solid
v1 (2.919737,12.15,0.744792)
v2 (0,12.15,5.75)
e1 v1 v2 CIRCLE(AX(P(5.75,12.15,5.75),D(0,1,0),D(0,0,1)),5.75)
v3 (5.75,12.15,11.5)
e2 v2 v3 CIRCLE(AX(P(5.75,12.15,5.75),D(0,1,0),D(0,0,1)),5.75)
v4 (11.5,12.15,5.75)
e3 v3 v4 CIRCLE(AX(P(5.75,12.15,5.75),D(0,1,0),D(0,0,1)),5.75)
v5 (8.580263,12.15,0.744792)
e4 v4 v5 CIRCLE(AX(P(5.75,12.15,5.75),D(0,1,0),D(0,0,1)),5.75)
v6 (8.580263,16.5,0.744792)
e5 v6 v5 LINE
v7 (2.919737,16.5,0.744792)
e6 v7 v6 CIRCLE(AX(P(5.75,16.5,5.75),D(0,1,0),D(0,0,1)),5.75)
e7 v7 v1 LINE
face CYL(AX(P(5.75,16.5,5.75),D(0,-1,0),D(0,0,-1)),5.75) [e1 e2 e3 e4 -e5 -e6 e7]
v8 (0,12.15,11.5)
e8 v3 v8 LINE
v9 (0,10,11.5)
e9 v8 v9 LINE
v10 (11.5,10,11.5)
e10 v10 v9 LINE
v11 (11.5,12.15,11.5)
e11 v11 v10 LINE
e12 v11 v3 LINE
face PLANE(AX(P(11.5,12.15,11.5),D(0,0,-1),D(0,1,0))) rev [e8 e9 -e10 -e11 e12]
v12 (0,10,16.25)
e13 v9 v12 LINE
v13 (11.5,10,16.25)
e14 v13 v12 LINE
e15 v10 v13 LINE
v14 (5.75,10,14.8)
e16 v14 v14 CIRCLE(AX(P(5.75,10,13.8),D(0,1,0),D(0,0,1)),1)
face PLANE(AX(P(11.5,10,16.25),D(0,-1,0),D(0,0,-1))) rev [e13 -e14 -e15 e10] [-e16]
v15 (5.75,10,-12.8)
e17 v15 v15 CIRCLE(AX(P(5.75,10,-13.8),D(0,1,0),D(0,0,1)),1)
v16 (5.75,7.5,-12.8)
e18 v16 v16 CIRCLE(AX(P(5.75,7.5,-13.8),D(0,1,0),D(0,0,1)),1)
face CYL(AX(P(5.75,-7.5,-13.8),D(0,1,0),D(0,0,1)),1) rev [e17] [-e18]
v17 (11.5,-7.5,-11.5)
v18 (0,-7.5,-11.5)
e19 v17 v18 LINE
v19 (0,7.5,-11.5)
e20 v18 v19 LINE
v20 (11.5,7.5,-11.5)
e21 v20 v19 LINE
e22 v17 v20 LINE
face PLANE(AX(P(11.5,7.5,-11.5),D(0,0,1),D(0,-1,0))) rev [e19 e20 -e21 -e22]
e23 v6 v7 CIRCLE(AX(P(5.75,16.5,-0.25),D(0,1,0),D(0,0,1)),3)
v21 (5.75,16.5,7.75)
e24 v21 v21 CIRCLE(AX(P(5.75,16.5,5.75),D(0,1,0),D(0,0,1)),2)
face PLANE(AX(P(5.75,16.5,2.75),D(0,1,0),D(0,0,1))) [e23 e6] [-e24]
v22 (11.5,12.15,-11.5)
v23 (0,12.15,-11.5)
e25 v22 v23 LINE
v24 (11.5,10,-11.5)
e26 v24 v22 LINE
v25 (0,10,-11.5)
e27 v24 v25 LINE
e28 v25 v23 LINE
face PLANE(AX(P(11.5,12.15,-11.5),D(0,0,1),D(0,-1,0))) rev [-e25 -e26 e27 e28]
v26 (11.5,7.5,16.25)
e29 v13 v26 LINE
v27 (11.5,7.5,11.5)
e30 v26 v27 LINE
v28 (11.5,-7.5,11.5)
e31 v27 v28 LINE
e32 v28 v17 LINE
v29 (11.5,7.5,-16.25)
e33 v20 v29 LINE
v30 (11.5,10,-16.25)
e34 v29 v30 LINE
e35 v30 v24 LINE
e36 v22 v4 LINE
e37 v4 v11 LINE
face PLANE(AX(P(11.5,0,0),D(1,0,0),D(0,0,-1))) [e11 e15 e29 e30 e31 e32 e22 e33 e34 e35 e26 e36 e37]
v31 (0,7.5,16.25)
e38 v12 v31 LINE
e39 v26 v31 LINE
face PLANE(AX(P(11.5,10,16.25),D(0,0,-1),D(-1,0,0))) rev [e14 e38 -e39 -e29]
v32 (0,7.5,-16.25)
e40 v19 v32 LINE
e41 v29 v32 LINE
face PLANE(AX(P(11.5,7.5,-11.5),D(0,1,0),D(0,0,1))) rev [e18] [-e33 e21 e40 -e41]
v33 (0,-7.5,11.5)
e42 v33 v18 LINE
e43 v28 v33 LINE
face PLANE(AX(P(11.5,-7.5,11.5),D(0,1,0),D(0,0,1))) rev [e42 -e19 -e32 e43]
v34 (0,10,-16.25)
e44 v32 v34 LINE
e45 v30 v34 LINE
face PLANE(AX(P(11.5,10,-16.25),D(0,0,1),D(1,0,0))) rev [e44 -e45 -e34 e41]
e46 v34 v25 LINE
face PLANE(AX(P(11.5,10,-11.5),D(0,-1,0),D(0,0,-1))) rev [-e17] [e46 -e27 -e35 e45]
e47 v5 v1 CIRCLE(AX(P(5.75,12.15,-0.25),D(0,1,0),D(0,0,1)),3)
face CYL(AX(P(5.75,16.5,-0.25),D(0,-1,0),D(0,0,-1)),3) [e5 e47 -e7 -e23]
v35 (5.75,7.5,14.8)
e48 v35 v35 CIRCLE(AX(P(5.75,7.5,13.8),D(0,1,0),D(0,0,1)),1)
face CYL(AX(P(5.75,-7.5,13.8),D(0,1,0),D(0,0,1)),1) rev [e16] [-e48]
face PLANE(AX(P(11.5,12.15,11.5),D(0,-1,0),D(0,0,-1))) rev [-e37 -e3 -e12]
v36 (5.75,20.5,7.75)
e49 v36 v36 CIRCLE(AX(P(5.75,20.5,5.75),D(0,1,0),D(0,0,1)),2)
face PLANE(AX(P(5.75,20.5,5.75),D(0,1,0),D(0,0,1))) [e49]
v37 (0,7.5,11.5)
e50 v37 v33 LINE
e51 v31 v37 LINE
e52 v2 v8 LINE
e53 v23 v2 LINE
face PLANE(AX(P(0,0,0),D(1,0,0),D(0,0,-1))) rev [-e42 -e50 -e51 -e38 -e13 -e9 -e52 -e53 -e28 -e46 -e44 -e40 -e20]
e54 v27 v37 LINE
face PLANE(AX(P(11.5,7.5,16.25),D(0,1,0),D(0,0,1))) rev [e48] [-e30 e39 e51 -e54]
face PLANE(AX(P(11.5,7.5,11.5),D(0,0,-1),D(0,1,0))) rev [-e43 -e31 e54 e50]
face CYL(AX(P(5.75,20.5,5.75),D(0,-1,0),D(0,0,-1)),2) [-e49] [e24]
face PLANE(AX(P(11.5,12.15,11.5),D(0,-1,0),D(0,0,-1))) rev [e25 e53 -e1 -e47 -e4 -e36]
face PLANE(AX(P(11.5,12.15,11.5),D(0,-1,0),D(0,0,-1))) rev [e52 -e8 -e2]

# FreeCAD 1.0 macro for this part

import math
import FreeCAD as App
import Part
import Sketcher

V = App.Vector
Q = App.Units.Quantity

doc = App.newDocument("Part")
body = doc.addObject("PartDesign::Body", "Body")

# Sketch on YZ plane
sketch1 = doc.addObject("Sketcher::SketchObject", "Sketch")
body.addObject(sketch1)
sketch1.AttachmentSupport = (doc.YZ_Plane, [""])
sketch1.MapMode = "FlatFace"
sketch1.addGeometry(Part.LineSegment(V(10, -16.2, 0), V(10, -11.5, 0)), False)
sketch1.addGeometry(Part.LineSegment(V(10, -11.5, 0), V(12.2, -11.5, 0)), False)
sketch1.addGeometry(Part.LineSegment(V(12.2, -11.5, 0), V(12.2, 11.5, 0)), False)
sketch1.addGeometry(Part.LineSegment(V(12.2, 11.5, 0), V(10, 11.5, 0)), False)
sketch1.addGeometry(Part.LineSegment(V(10, 11.5, 0), V(10, 16.2, 0)), False)
sketch1.addGeometry(Part.LineSegment(V(10, 16.2, 0), V(7.5, 16.2, 0)), False)
sketch1.addGeometry(Part.LineSegment(V(7.5, 16.2, 0), V(7.5, 11.5, 0)), False)
sketch1.addGeometry(Part.LineSegment(V(7.5, 11.5, 0), V(-7.5, 11.5, 0)), False)
sketch1.addGeometry(Part.LineSegment(V(-7.5, 11.5, 0), V(-7.5, -11.5, 0)), False)
sketch1.addGeometry(Part.LineSegment(V(-7.5, -11.5, 0), V(7.5, -11.5, 0)), False)
sketch1.addGeometry(Part.LineSegment(V(7.5, -11.5, 0), V(7.5, -16.2, 0)), False)
sketch1.addGeometry(Part.LineSegment(V(7.5, -16.2, 0), V(10, -16.2, 0)), False)
sketch1.addConstraint(Sketcher.Constraint("Coincident", 0, 2, 1, 1))
sketch1.addConstraint(Sketcher.Constraint("Coincident", 1, 2, 2, 1))
sketch1.addConstraint(Sketcher.Constraint("Coincident", 2, 2, 3, 1))
sketch1.addConstraint(Sketcher.Constraint("Coincident", 3, 2, 4, 1))
sketch1.addConstraint(Sketcher.Constraint("Coincident", 4, 2, 5, 1))
sketch1.addConstraint(Sketcher.Constraint("Coincident", 5, 2, 6, 1))
sketch1.addConstraint(Sketcher.Constraint("Coincident", 6, 2, 7, 1))
sketch1.addConstraint(Sketcher.Constraint("Coincident", 7, 2, 8, 1))
sketch1.addConstraint(Sketcher.Constraint("Coincident", 8, 2, 9, 1))
sketch1.addConstraint(Sketcher.Constraint("Coincident", 9, 2, 10, 1))
sketch1.addConstraint(Sketcher.Constraint("Coincident", 10, 2, 11, 1))
sketch1.addConstraint(Sketcher.Constraint("Coincident", 11, 2, 0, 1))
sketch1.addConstraint(Sketcher.Constraint("Vertical", 0))
sketch1.addConstraint(Sketcher.Constraint("Horizontal", 1))
sketch1.addConstraint(Sketcher.Constraint("Vertical", 2))
sketch1.addConstraint(Sketcher.Constraint("Horizontal", 3))
sketch1.addConstraint(Sketcher.Constraint("Vertical", 4))
sketch1.addConstraint(Sketcher.Constraint("Horizontal", 5))
sketch1.addConstraint(Sketcher.Constraint("Vertical", 6))
sketch1.addConstraint(Sketcher.Constraint("Horizontal", 7))
sketch1.addConstraint(Sketcher.Constraint("Vertical", 8))
sketch1.addConstraint(Sketcher.Constraint("Horizontal", 9))
sketch1.addConstraint(Sketcher.Constraint("Vertical", 10))
sketch1.addConstraint(Sketcher.Constraint("Horizontal", 11))
sketch1.addConstraint(Sketcher.Constraint("Symmetric", 6, 2, 8, 2, -1, 1))
sketch1.addConstraint(Sketcher.Constraint("Symmetric", 0, 2, 3, 2, -1))
sketch1.addConstraint(Sketcher.Constraint("Symmetric", 5, 2, 10, 2, -1))
sketch1.addConstraint(Sketcher.Constraint("Horizontal", 3, 2, 6, 2))
sketch1.addConstraint(Sketcher.Constraint("DistanceX", 7, 2, 7, 1, Q("15 mm")))
sketch1.addConstraint(Sketcher.Constraint("DistanceY", 2, 1, 2, 2, Q("23 mm")))
sketch1.addConstraint(Sketcher.Constraint("DistanceX", 5, 2, 5, 1, Q("2.5 mm")))
sketch1.addConstraint(Sketcher.Constraint("DistanceX", 1, 1, 1, 2, Q("2.15 mm")))
sketch1.addConstraint(Sketcher.Constraint("DistanceY", 0, 1, 0, 2, Q("4.75 mm")))
pad1 = doc.addObject("PartDesign::Pad", "Pad")
body.addObject(pad1)
pad1.Profile = sketch1
pad1.Length = 11.5

# Sketch on XZ plane
sketch2 = doc.addObject("Sketcher::SketchObject", "Sketch001")
body.addObject(sketch2)
sketch2.AttachmentSupport = (doc.XZ_Plane, [""])
sketch2.MapMode = "FlatFace"
sketch2.AttachmentOffset = App.Placement(V(0, 0, -12.15), App.Rotation())
sketch2.addGeometry(Part.ArcOfCircle(Part.Circle(V(5.8, 5.8, 0), V(0, 0, 1), 5.8), math.radians(-61), math.radians(241)), False)
sketch2.addGeometry(Part.ArcOfCircle(Part.Circle(V(5.8, -0.2, 0), V(0, 0, 1), 3), math.radians(161), math.radians(379)), False)
sketch2.addConstraint(Sketcher.Constraint("Coincident", 0, 1, 1, 2))
sketch2.addConstraint(Sketcher.Constraint("Coincident", 1, 1, 0, 2))
sketch2.addConstraint(Sketcher.Constraint("Horizontal", 0, 1, 1, 1))
sketch2.addConstraint(Sketcher.Constraint("Radius", 1, Q("3 mm")))
sketch2.addConstraint(Sketcher.Constraint("Radius", 0, Q("5.75 mm")))
sketch2.addConstraint(Sketcher.Constraint("DistanceY", 1, 3, 0, 3, Q("6 mm")))
sketch2.addConstraint(Sketcher.Constraint("DistanceX", -1, 1, 0, 3, Q("5.75 mm")))
sketch2.addConstraint(Sketcher.Constraint("DistanceY", -1, 1, 0, 3, Q("5.75 mm")))
pad2 = doc.addObject("PartDesign::Pad", "Pad001")
body.addObject(pad2)
pad2.Profile = sketch2
pad2.Length = 4.35
pad2.Reversed = True

# Sketch on XZ plane
sketch3 = doc.addObject("Sketcher::SketchObject", "Sketch002")
body.addObject(sketch3)
sketch3.AttachmentSupport = (doc.XZ_Plane, [""])
sketch3.MapMode = "FlatFace"
sketch3.AttachmentOffset = App.Placement(V(0, 0, -16.5), App.Rotation())
sketch3.addGeometry(Part.Circle(V(5.8, 5.8, 0), V(0, 0, 1), 2), False)
sketch3.addConstraint(Sketcher.Constraint("Diameter", 0, Q("4 mm")))
sketch3.addConstraint(Sketcher.Constraint("DistanceX", -1, 1, 0, 3, Q("5.75 mm")))
sketch3.addConstraint(Sketcher.Constraint("DistanceY", -1, 1, 0, 3, Q("5.75 mm")))
pad3 = doc.addObject("PartDesign::Pad", "Pad002")
body.addObject(pad3)
pad3.Profile = sketch3
pad3.Length = 4
pad3.Reversed = True

# Sketch on XZ plane
sketch4 = doc.addObject("Sketcher::SketchObject", "Sketch003")
body.addObject(sketch4)
sketch4.AttachmentSupport = (doc.XZ_Plane, [""])
sketch4.MapMode = "FlatFace"
sketch4.AttachmentOffset = App.Placement(V(0, 0, -10), App.Rotation())
sketch4.addGeometry(Part.Circle(V(5.8, 13.8, 0), V(0, 0, 1), 1), False)
sketch4.addGeometry(Part.Circle(V(5.8, -13.8, 0), V(0, 0, 1), 1), False)
sketch4.addConstraint(Sketcher.Constraint("Equal", 0, 1))
sketch4.addConstraint(Sketcher.Constraint("Symmetric", 0, 3, 1, 3, -1))
sketch4.addConstraint(Sketcher.Constraint("Diameter", 0, Q("2 mm")))
sketch4.addConstraint(Sketcher.Constraint("DistanceY", -1, 1, 0, 3, Q("13.8 mm")))
sketch4.addConstraint(Sketcher.Constraint("DistanceX", -1, 1, 0, 3, Q("5.75 mm")))
pocket1 = doc.addObject("PartDesign::Pocket", "Pocket")
body.addObject(pocket1)
pocket1.Profile = sketch4
pocket1.Type = "ThroughAll"
pocket1.Reversed = True

doc.recompute()
